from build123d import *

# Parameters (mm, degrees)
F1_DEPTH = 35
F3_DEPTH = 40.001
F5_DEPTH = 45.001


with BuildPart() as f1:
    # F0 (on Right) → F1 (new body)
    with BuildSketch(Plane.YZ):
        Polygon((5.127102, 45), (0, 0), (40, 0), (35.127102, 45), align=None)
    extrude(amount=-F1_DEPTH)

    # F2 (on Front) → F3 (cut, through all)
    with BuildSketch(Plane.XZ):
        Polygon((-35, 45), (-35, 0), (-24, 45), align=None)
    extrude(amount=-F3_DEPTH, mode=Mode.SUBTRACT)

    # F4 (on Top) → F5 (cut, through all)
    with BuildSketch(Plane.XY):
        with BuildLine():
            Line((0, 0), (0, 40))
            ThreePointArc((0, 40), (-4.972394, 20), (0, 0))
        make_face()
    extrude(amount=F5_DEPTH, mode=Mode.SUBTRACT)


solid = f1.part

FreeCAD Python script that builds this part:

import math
import FreeCAD as App
import Part
import Sketcher
from FreeCAD import Vector
Q = App.Units.Quantity


def add_polygon(sketch, points):
    """Adds a closed chain of lines whose ends are joined by coincident constraints."""
    first, n = sketch.GeometryCount, len(points)
    for a, b in zip(points, points[1:] + points[:1]):
        sketch.addGeometry(Part.LineSegment(App.Vector(*a, 0), App.Vector(*b, 0)), False)
    for i in range(n):
        sketch.addConstraint(Sketcher.Constraint("Coincident", first + i, 2, first + (i + 1) % n, 1))

doc = App.newDocument("Part")
params = doc.addObject("Spreadsheet::Sheet", "Params")
for row, (alias, value) in enumerate([
    ("sketch1_width", "40 mm"),
    ("sketch1_width2", "30 mm"),
    ("pad1_length", "35 mm"),
    ("sketch2_width", "11 mm"),
    ("sketch2_height", "45 mm"),
    ("sketch3_height", "40 mm"),
], start=1):
    params.set(f"A{row}", alias)
    params.set(f"B{row}", "=" + value)
    params.setAlias(f"B{row}", alias)

body = doc.addObject("PartDesign::Body", "Body")

sketch1 = body.newObject("Sketcher::SketchObject", "Sketch")
sketch1.AttachmentSupport = (doc.getObject("YZ_Plane"), [""])
sketch1.MapMode = "FlatFace"
add_polygon(sketch1, [(5, 45), (0, 0), (40, 0), (35, 45)])
sketch1.addConstraint([
    Sketcher.Constraint("Horizontal", 1),
    Sketcher.Constraint("Horizontal", 3),
    Sketcher.Constraint("Coincident", 0, 2, -1, 1),
    Sketcher.Constraint("DistanceX", 1, 1, 1, 2, Q("40 mm")),
    Sketcher.Constraint("DistanceX", 3, 2, 3, 1, Q("30 mm")),
    Sketcher.Constraint("DistanceY", -1, 1, 2, 2, Q("45 mm")),
    Sketcher.Constraint("Angle", 0, Q("-96.5 deg")),
])
sketch1.setExpression("Constraints[7]", "Params.sketch1_width")
sketch1.setExpression("Constraints[8]", "Params.sketch1_width2")
pad1 = body.newObject("PartDesign::Pad", "Pad")
pad1.Profile = sketch1
pad1.setExpression("Length", "Params.pad1_length")
pad1.Reversed = True

sketch2 = body.newObject("Sketcher::SketchObject", "Sketch001")
sketch2.AttachmentSupport = (doc.getObject("XZ_Plane"), [""])
sketch2.MapMode = "FlatFace"
add_polygon(sketch2, [(-35, 45), (-35, 0), (-24, 45)])
sketch2.addConstraint([
    Sketcher.Constraint("Vertical", 0),
    Sketcher.Constraint("Horizontal", 2),
    Sketcher.Constraint("PointOnObject", 0, 2, -1),
    Sketcher.Constraint("DistanceX", 2, 2, 2, 1, Q("11 mm")),
    Sketcher.Constraint("DistanceY", 0, 2, 0, 1, Q("45 mm")),
    Sketcher.Constraint("DistanceX", 0, 2, -1, 1, Q("35 mm")),
])
sketch2.setExpression("Constraints[6]", "Params.sketch2_width")
sketch2.setExpression("Constraints[7]", "Params.sketch2_height")
pocket1 = body.newObject("PartDesign::Pocket", "Pocket")
pocket1.Profile = sketch2
pocket1.Type = "ThroughAll"

sketch3 = body.newObject("Sketcher::SketchObject", "Sketch002")
sketch3.AttachmentSupport = (doc.getObject("XY_Plane"), [""])
sketch3.MapMode = "FlatFace"
sketch3.addGeometry([
    Part.LineSegment(Vector(0, 0, 0), Vector(0, 40, 0)),
    Part.ArcOfCircle(Part.Circle(Vector(38, 20, 0), Vector(0, 0, 1), 43), math.radians(152), math.radians(208)),
], False)
sketch3.addConstraint([
    Sketcher.Constraint("Coincident", 0, 1, 1, 2),
    Sketcher.Constraint("Coincident", 1, 1, 0, 2),
    Sketcher.Constraint("Vertical", 0),
    Sketcher.Constraint("Coincident", 0, 1, -1, 1),
    Sketcher.Constraint("DistanceY", 0, 1, 0, 2, Q("40 mm")),
    Sketcher.Constraint("Radius", 1, Q("42.708271 mm")),
])
sketch3.setExpression("Constraints[4]", "Params.sketch3_height")
pocket2 = body.newObject("PartDesign::Pocket", "Pocket001")
pocket2.Profile = sketch3
pocket2.Type = "ThroughAll"
pocket2.Reversed = True

doc.recompute()
